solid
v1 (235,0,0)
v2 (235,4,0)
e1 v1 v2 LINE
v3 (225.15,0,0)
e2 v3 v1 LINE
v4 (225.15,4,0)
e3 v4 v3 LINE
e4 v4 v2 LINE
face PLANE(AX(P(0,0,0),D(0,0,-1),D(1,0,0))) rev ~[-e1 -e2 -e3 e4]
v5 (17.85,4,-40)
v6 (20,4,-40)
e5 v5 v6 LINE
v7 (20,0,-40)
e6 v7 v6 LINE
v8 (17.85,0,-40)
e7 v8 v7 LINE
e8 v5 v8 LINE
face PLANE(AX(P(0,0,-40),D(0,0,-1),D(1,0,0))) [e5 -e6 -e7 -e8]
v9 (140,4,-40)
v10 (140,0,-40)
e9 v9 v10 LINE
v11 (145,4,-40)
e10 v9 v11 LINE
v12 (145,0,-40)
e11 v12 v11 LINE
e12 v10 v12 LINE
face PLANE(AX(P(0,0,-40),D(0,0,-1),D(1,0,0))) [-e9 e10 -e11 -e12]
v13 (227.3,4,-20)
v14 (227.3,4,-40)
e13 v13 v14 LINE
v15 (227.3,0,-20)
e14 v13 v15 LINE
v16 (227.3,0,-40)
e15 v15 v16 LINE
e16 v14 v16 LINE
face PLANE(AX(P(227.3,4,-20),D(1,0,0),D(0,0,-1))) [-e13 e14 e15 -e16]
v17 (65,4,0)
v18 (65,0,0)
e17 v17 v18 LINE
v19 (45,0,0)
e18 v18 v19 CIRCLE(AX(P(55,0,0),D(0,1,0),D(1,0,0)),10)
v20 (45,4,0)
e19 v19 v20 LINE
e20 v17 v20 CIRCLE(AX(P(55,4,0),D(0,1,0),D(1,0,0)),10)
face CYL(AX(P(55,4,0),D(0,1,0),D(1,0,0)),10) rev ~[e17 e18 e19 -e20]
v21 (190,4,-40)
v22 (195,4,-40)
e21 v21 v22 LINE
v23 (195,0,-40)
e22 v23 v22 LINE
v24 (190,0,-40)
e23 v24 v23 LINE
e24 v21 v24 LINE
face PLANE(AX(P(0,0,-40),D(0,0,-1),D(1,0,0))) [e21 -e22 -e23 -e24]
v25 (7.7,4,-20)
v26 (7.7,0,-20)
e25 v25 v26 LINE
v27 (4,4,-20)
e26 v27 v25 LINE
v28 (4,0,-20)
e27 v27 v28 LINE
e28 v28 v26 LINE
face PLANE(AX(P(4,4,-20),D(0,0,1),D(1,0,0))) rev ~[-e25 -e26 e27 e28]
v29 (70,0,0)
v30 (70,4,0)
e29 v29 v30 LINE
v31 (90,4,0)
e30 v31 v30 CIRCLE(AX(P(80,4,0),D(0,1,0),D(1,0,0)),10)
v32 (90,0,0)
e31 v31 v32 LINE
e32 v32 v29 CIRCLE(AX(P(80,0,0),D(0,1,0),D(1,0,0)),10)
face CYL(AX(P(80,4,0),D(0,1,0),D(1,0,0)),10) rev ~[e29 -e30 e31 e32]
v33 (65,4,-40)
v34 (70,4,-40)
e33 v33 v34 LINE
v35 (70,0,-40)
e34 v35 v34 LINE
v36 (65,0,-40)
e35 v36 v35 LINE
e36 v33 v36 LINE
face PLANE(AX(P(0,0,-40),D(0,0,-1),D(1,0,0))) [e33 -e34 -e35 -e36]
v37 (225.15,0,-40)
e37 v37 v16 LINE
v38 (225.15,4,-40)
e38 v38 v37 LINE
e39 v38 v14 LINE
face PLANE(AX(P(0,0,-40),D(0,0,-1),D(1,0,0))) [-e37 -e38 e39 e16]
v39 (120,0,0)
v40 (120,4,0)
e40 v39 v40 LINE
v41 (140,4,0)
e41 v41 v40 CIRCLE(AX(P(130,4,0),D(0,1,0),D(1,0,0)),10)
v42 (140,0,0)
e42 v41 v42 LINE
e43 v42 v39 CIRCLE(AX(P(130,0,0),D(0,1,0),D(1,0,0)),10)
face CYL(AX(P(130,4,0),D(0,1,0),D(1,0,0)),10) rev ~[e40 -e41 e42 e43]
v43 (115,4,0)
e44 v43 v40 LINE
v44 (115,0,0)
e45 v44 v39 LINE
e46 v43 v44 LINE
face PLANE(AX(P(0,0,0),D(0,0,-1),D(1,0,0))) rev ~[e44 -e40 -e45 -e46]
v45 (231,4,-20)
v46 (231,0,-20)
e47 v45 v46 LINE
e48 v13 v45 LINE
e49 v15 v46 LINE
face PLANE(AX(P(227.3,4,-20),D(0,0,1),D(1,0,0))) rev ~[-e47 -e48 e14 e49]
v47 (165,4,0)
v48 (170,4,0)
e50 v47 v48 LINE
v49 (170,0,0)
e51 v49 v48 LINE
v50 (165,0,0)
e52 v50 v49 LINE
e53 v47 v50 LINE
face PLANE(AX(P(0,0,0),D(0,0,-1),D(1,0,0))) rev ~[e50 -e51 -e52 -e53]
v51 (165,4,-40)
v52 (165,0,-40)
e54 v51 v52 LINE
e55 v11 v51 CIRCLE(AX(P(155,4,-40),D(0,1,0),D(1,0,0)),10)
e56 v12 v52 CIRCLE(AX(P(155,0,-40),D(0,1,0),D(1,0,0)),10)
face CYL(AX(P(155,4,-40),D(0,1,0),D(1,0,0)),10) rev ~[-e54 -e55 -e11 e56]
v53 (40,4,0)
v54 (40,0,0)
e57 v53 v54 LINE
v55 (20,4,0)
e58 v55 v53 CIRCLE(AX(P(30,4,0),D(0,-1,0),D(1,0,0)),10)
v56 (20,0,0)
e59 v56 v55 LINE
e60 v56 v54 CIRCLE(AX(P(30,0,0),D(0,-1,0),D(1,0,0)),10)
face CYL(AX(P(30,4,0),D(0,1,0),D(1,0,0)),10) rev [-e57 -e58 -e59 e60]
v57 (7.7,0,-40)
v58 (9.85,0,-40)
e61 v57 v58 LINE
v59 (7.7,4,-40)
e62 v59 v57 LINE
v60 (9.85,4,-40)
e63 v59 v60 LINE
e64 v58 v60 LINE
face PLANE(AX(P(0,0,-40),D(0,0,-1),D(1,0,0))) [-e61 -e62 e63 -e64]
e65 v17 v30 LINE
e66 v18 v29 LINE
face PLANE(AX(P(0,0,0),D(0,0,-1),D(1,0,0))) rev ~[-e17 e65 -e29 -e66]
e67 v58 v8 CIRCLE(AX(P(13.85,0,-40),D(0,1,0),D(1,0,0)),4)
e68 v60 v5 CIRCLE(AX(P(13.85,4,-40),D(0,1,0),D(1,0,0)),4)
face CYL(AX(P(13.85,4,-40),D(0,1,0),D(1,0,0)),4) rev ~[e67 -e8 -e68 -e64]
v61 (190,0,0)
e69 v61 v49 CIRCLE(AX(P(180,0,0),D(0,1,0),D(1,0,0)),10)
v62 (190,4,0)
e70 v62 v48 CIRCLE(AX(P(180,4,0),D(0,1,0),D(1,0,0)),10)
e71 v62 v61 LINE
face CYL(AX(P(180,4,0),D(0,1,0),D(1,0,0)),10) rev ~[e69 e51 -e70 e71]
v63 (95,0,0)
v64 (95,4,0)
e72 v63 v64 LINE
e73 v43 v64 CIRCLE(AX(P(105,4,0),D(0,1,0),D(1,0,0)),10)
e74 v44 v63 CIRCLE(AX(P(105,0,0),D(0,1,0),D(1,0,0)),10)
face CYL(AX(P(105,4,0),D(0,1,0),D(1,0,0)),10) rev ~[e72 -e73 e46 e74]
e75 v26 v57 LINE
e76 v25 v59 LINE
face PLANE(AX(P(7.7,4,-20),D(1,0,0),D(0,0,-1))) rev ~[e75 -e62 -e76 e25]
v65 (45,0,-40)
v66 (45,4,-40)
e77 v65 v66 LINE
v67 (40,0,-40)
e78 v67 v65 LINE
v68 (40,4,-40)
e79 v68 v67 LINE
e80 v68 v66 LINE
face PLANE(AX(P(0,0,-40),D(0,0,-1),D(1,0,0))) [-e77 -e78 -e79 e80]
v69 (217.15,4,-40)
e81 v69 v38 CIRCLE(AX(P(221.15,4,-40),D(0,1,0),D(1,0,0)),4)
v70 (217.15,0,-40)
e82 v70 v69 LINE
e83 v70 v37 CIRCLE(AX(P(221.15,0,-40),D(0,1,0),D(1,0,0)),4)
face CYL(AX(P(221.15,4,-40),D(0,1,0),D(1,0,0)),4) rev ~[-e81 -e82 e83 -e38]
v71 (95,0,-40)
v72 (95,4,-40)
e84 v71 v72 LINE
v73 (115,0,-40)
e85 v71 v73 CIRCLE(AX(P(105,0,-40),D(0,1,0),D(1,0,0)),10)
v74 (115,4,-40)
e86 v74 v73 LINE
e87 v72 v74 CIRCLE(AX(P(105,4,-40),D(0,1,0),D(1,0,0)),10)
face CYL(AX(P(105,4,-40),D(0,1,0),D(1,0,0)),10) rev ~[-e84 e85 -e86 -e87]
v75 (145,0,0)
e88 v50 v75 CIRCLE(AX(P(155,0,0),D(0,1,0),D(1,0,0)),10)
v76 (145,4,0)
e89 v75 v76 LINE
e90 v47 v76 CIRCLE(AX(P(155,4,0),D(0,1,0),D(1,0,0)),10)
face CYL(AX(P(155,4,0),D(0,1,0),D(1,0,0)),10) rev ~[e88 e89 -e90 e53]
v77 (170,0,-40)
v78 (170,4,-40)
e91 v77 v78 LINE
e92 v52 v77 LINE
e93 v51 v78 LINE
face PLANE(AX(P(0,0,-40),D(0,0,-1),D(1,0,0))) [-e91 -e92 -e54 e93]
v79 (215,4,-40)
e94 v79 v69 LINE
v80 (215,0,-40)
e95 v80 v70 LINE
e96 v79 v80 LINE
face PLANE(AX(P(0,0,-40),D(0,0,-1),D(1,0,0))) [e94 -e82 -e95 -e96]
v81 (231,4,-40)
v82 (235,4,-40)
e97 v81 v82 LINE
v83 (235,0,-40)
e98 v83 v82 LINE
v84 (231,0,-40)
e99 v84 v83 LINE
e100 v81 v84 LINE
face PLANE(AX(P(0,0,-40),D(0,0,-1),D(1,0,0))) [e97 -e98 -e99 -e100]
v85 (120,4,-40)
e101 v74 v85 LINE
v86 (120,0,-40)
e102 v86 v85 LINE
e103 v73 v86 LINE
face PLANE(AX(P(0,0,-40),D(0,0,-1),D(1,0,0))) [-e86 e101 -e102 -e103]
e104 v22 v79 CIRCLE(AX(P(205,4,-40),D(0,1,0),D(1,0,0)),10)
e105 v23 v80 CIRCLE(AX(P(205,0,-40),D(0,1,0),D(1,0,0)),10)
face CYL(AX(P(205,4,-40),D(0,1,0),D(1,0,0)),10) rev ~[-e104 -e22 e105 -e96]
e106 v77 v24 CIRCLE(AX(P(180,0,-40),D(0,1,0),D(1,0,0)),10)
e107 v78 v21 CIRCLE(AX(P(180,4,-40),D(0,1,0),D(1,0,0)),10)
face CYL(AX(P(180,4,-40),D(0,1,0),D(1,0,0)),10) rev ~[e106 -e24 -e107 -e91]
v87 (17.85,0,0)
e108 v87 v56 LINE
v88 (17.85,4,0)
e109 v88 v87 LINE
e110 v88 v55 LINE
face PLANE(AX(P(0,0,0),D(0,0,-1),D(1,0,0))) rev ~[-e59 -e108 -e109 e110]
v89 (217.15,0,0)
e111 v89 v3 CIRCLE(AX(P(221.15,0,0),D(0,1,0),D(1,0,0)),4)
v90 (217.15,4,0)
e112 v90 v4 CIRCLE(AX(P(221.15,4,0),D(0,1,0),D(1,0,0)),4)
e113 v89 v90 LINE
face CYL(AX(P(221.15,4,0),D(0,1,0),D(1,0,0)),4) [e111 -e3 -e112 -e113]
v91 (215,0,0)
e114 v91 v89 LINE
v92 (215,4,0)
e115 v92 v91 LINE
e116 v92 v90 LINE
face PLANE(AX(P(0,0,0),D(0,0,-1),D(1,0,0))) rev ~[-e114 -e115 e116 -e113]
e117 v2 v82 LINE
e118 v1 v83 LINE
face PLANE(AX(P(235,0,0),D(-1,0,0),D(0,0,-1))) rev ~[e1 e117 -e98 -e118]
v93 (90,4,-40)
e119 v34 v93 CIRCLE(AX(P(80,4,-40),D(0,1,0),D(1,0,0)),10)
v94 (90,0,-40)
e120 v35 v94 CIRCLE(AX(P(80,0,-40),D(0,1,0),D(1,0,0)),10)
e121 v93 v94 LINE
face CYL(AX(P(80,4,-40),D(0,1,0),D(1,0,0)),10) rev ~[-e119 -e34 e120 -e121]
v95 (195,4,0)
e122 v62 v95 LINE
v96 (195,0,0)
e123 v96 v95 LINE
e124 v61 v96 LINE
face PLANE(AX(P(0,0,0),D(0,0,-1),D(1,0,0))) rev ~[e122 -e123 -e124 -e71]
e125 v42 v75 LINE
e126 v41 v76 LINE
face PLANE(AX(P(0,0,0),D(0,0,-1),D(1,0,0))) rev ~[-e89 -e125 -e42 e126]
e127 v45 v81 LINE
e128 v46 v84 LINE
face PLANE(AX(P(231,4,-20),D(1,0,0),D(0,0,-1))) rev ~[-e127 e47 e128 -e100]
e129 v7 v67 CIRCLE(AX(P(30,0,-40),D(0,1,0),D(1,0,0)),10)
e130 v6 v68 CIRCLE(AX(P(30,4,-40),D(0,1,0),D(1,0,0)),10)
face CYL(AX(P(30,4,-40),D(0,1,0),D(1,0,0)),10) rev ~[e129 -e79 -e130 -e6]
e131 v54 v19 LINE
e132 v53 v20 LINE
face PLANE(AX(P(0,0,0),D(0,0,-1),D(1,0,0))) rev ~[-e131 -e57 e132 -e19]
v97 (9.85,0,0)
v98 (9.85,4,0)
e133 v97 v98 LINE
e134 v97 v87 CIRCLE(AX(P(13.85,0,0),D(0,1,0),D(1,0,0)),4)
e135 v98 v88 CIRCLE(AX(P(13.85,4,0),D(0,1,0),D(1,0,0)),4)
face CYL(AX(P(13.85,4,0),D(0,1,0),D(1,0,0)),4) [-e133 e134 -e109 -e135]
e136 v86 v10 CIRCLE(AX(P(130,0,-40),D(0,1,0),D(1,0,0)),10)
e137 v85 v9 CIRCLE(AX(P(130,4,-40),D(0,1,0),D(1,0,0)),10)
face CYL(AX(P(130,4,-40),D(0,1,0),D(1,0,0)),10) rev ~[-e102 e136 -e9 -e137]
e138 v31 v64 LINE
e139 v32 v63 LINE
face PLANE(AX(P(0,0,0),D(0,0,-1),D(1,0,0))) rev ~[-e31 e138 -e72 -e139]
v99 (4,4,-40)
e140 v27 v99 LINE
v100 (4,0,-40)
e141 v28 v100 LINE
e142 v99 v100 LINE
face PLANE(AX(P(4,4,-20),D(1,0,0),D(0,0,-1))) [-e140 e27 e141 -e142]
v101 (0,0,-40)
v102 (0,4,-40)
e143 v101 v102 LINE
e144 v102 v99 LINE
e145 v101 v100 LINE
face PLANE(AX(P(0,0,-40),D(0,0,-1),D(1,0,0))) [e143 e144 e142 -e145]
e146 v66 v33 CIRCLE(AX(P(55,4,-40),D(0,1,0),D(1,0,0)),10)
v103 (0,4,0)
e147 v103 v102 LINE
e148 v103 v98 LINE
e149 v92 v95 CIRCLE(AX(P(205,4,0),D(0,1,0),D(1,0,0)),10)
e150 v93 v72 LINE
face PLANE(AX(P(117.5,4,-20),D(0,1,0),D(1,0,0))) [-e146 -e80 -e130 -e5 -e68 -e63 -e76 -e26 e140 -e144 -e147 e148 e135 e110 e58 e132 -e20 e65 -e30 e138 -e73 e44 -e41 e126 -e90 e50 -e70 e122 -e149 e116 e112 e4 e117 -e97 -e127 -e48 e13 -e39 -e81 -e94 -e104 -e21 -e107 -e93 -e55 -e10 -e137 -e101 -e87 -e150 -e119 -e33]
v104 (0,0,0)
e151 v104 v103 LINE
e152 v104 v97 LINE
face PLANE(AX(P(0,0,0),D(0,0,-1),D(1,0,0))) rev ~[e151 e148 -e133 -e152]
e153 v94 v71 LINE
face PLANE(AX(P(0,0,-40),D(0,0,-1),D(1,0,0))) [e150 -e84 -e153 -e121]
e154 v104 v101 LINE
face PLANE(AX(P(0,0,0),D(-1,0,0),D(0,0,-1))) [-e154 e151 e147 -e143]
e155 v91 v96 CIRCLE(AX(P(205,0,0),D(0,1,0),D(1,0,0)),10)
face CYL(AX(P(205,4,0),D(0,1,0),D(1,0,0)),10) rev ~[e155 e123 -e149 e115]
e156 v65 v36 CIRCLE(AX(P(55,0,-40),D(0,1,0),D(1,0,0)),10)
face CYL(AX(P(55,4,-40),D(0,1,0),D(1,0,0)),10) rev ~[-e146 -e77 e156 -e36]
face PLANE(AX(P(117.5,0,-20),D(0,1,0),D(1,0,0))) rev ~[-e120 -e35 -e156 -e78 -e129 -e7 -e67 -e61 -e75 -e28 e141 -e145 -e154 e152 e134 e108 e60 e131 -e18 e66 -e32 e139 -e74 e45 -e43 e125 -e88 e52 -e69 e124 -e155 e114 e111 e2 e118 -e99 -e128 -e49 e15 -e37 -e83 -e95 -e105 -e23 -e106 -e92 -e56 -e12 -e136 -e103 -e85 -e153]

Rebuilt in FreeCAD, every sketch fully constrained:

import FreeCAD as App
import Part
import Sketcher
from FreeCAD import Vector


def add_polygon(sketch, points):
    """Adds a closed chain of lines whose ends are joined by coincident constraints."""
    first, n = sketch.GeometryCount, len(points)
    for a, b in zip(points, points[1:] + points[:1]):
        sketch.addGeometry(Part.LineSegment(App.Vector(*a, 0), App.Vector(*b, 0)), False)
    for i in range(n):
        sketch.addConstraint(Sketcher.Constraint("Coincident", first + i, 2, first + (i + 1) % n, 1))

doc = App.newDocument("Part")
body = doc.addObject("PartDesign::Body", "Body")

# Sketch on XZ plane
sketch1 = body.newObject("Sketcher::SketchObject", "Sketch")
sketch1.AttachmentSupport = (doc.getObject("XZ_Plane"), [""])
sketch1.MapMode = "FlatFace"
add_polygon(sketch1, [(0, -40), (0, 0), (235, 0), (235, -40)])  # lines 0-3
sketch1.addConstraint(Sketcher.Constraint("Vertical", 0))
sketch1.addConstraint(Sketcher.Constraint("Horizontal", 1))
sketch1.addConstraint(Sketcher.Constraint("Vertical", 2))
sketch1.addConstraint(Sketcher.Constraint("Horizontal", 3))
sketch1.addConstraint(Sketcher.Constraint("Coincident", 0, 2, -1, 1))
sketch1.addConstraint(Sketcher.Constraint("DistanceX", 1, 1, 1, 2, 235.0))
sketch1.addConstraint(Sketcher.Constraint("DistanceY", 0, 1, 0, 2, 40.0))
pad1 = body.newObject("PartDesign::Pad", "Pad")
pad1.Profile = sketch1
pad1.Length = 4
pad1.Reversed = True

# Sketch on XZ plane
sketch2 = body.newObject("Sketcher::SketchObject", "Sketch001")
sketch2.AttachmentSupport = (doc.getObject("XZ_Plane"), [""])
sketch2.MapMode = "FlatFace"
sketch2.AttachmentOffset = App.Placement(Vector(0, 0, -4), App.Rotation())
add_polygon(sketch2, [(4, -40), (4, -20), (7.7, -20), (7.7, -40)])  # lines 0-3
add_polygon(sketch2, [(227.3, -40), (227.3, -20), (231, -20), (231, -40)])  # lines 4-7
sketch2.addConstraint(Sketcher.Constraint("Vertical", 0))
sketch2.addConstraint(Sketcher.Constraint("Horizontal", 1))
sketch2.addConstraint(Sketcher.Constraint("Vertical", 2))
sketch2.addConstraint(Sketcher.Constraint("Horizontal", 3))
sketch2.addConstraint(Sketcher.Constraint("Vertical", 4))
sketch2.addConstraint(Sketcher.Constraint("Horizontal", 5))
sketch2.addConstraint(Sketcher.Constraint("Vertical", 6))
sketch2.addConstraint(Sketcher.Constraint("Horizontal", 7))
sketch2.addConstraint(Sketcher.Constraint("Horizontal", 1, 2, 4, 2))
sketch2.addConstraint(Sketcher.Constraint("Horizontal", 3, 2, 6, 2))
sketch2.addConstraint(Sketcher.Constraint("Equal", 3, 5))
sketch2.addConstraint(Sketcher.Constraint("DistanceY", 0, 1, 0, 2, 20.0))
sketch2.addConstraint(Sketcher.Constraint("DistanceX", 1, 1, 1, 2, 3.7))
sketch2.addConstraint(Sketcher.Constraint("DistanceX", -1, 1, 0, 2, 4.0))
sketch2.addConstraint(Sketcher.Constraint("DistanceY", 0, 2, -1, 1, 20.0))
sketch2.addConstraint(Sketcher.Constraint("DistanceX", -1, 1, 5, 2, 231.0))
pocket1 = body.newObject("PartDesign::Pocket", "Pocket")
pocket1.Profile = sketch2
pocket1.Length = 4
pocket1.Reversed = True

# Sketch on XZ plane
sketch3 = body.newObject("Sketcher::SketchObject", "Sketch002")
sketch3.AttachmentSupport = (doc.getObject("XZ_Plane"), [""])
sketch3.MapMode = "FlatFace"
sketch3.AttachmentOffset = App.Placement(Vector(0, 0, -4), App.Rotation())
sketch3.addGeometry(Part.Circle(Vector(30, -40, 0), Vector(0, 0, 1), 10), False)
sketch3.addConstraint(Sketcher.Constraint("Diameter", 0, 20.0))
sketch3.addConstraint(Sketcher.Constraint("DistanceX", -1, 1, 0, 3, 30.0))
sketch3.addConstraint(Sketcher.Constraint("DistanceY", 0, 3, -1, 1, 40.0))
pocket2 = body.newObject("PartDesign::Pocket", "Pocket001")
pocket2.Profile = sketch3
pocket2.Length = 4
pocket2.Reversed = True
doc.recompute()

linearpattern = body.newObject("PartDesign::LinearPattern", "LinearPattern")
linearpattern.Originals = [pocket2]
linearpattern.Direction = (doc.getObject("X_Axis"), [""])
linearpattern.Mode = "offset"
linearpattern.Offset = 25
linearpattern.Occurrences = 8
body.Tip = linearpattern

# Sketch on XZ plane
sketch4 = body.newObject("Sketcher::SketchObject", "Sketch003")
sketch4.AttachmentSupport = (doc.getObject("XZ_Plane"), [""])
sketch4.MapMode = "FlatFace"
sketch4.AttachmentOffset = App.Placement(Vector(0, 0, -4), App.Rotation())
sketch4.addGeometry(Part.Circle(Vector(221.15, -40, 0), Vector(0, 0, 1), 4), False)
sketch4.addGeometry(Part.Circle(Vector(13.85, -40, 0), Vector(0, 0, 1), 4), False)
sketch4.addConstraint(Sketcher.Constraint("Equal", 0, 1))
sketch4.addConstraint(Sketcher.Constraint("Horizontal", 0, 3, 1, 3))
sketch4.addConstraint(Sketcher.Constraint("Diameter", 0, 8.0))
sketch4.addConstraint(Sketcher.Constraint("DistanceY", 0, 3, -1, 1, 40.0))
sketch4.addConstraint(Sketcher.Constraint("DistanceX", 1, 3, 0, 3, 207.3))
sketch4.addConstraint(Sketcher.Constraint("DistanceX", -1, 1, 0, 3, 221.15))
pocket3 = body.newObject("PartDesign::Pocket", "Pocket002")
pocket3.Profile = sketch4
pocket3.Length = 4
pocket3.Reversed = True

# Sketch on XZ plane
sketch5 = body.newObject("Sketcher::SketchObject", "Sketch004")
sketch5.AttachmentSupport = (doc.getObject("XZ_Plane"), [""])
sketch5.MapMode = "FlatFace"
sketch5.AttachmentOffset = App.Placement(Vector(0, 0, -4), App.Rotation())
sketch5.addGeometry(Part.Circle(Vector(221.15, 0, 0), Vector(0, 0, 1), 4), False)
sketch5.addGeometry(Part.Circle(Vector(13.85, 0, 0), Vector(0, 0, 1), 4), False)
sketch5.addConstraint(Sketcher.Constraint("Equal", 0, 1))
sketch5.addConstraint(Sketcher.Constraint("PointOnObject", 0, 3, -1))
sketch5.addConstraint(Sketcher.Constraint("PointOnObject", 1, 3, -1))
sketch5.addConstraint(Sketcher.Constraint("Diameter", 0, 8.0))
sketch5.addConstraint(Sketcher.Constraint("DistanceX", 1, 3, 0, 3, 207.3))
sketch5.addConstraint(Sketcher.Constraint("DistanceX", -1, 1, 0, 3, 221.15))
pad2 = body.newObject("PartDesign::Pad", "Pad001")
pad2.Profile = sketch5
pad2.Length = 4
doc.recompute()

datumplane = body.newObject("PartDesign::Plane", "DatumPlane")
datumplane.AttachmentSupport = (doc.getObject("XY_Plane"), [""])
datumplane.MapMode = "FlatFace"
datumplane.AttachmentOffset = App.Placement(Vector(0, 0, -20), App.Rotation())
mirrored = body.newObject("PartDesign::Mirrored", "Mirrored")
mirrored.Originals = [pocket2]
mirrored.MirrorPlane = (datumplane, [""])
body.Tip = mirrored

# Sketch on XZ plane
sketch6 = body.newObject("Sketcher::SketchObject", "Sketch005")
sketch6.AttachmentSupport = (doc.getObject("XZ_Plane"), [""])
sketch6.MapMode = "FlatFace"
sketch6.AttachmentOffset = App.Placement(Vector(0, 0, -4), App.Rotation())
sketch6.addGeometry(Part.Circle(Vector(55, 0, 0), Vector(0, 0, 1), 10), False)
sketch6.addConstraint(Sketcher.Constraint("PointOnObject", 0, 3, -1))
sketch6.addConstraint(Sketcher.Constraint("Diameter", 0, 20.0))
sketch6.addConstraint(Sketcher.Constraint("DistanceX", -1, 1, 0, 3, 55.0))
pocket4 = body.newObject("PartDesign::Pocket", "Pocket003")
pocket4.Profile = sketch6
pocket4.Length = 4
pocket4.Reversed = True

# Sketch on XZ plane
sketch7 = body.newObject("Sketcher::SketchObject", "Sketch006")
sketch7.AttachmentSupport = (doc.getObject("XZ_Plane"), [""])
sketch7.MapMode = "FlatFace"
sketch7.AttachmentOffset = App.Placement(Vector(0, 0, -4), App.Rotation())
sketch7.addGeometry(Part.Circle(Vector(80, 0, 0), Vector(0, 0, 1), 10), False)
sketch7.addConstraint(Sketcher.Constraint("PointOnObject", 0, 3, -1))
sketch7.addConstraint(Sketcher.Constraint("Diameter", 0, 20.0))
sketch7.addConstraint(Sketcher.Constraint("DistanceX", -1, 1, 0, 3, 80.0))
pocket5 = body.newObject("PartDesign::Pocket", "Pocket004")
pocket5.Profile = sketch7
pocket5.Length = 4
pocket5.Reversed = True

# Sketch on XZ plane
sketch8 = body.newObject("Sketcher::SketchObject", "Sketch007")
sketch8.AttachmentSupport = (doc.getObject("XZ_Plane"), [""])
sketch8.MapMode = "FlatFace"
sketch8.AttachmentOffset = App.Placement(Vector(0, 0, -4), App.Rotation())
sketch8.addGeometry(Part.Circle(Vector(105, 0, 0), Vector(0, 0, 1), 10), False)
sketch8.addConstraint(Sketcher.Constraint("PointOnObject", 0, 3, -1))
sketch8.addConstraint(Sketcher.Constraint("Diameter", 0, 20.0))
sketch8.addConstraint(Sketcher.Constraint("DistanceX", -1, 1, 0, 3, 105.0))
pocket6 = body.newObject("PartDesign::Pocket", "Pocket005")
pocket6.Profile = sketch8
pocket6.Length = 4
pocket6.Reversed = True

# Sketch on XZ plane
sketch9 = body.newObject("Sketcher::SketchObject", "Sketch008")
sketch9.AttachmentSupport = (doc.getObject("XZ_Plane"), [""])
sketch9.MapMode = "FlatFace"
sketch9.AttachmentOffset = App.Placement(Vector(0, 0, -4), App.Rotation())
sketch9.addGeometry(Part.Circle(Vector(130, 0, 0), Vector(0, 0, 1), 10), False)
sketch9.addConstraint(Sketcher.Constraint("PointOnObject", 0, 3, -1))
sketch9.addConstraint(Sketcher.Constraint("Diameter", 0, 20.0))
sketch9.addConstraint(Sketcher.Constraint("DistanceX", -1, 1, 0, 3, 130.0))
pocket7 = body.newObject("PartDesign::Pocket", "Pocket006")
pocket7.Profile = sketch9
pocket7.Length = 4
pocket7.Reversed = True

# Sketch on XZ plane
sketch10 = body.newObject("Sketcher::SketchObject", "Sketch009")
sketch10.AttachmentSupport = (doc.getObject("XZ_Plane"), [""])
sketch10.MapMode = "FlatFace"
sketch10.AttachmentOffset = App.Placement(Vector(0, 0, -4), App.Rotation())
sketch10.addGeometry(Part.Circle(Vector(155, 0, 0), Vector(0, 0, 1), 10), False)
sketch10.addConstraint(Sketcher.Constraint("PointOnObject", 0, 3, -1))
sketch10.addConstraint(Sketcher.Constraint("Diameter", 0, 20.0))
sketch10.addConstraint(Sketcher.Constraint("DistanceX", -1, 1, 0, 3, 155.0))
pocket8 = body.newObject("PartDesign::Pocket", "Pocket007")
pocket8.Profile = sketch10
pocket8.Length = 4
pocket8.Reversed = True

# Sketch on XZ plane
sketch11 = body.newObject("Sketcher::SketchObject", "Sketch010")
sketch11.AttachmentSupport = (doc.getObject("XZ_Plane"), [""])
sketch11.MapMode = "FlatFace"
sketch11.AttachmentOffset = App.Placement(Vector(0, 0, -4), App.Rotation())
sketch11.addGeometry(Part.Circle(Vector(180, 0, 0), Vector(0, 0, 1), 10), False)
sketch11.addConstraint(Sketcher.Constraint("PointOnObject", 0, 3, -1))
sketch11.addConstraint(Sketcher.Constraint("Diameter", 0, 20.0))
sketch11.addConstraint(Sketcher.Constraint("DistanceX", -1, 1, 0, 3, 180.0))
pocket9 = body.newObject("PartDesign::Pocket", "Pocket008")
pocket9.Profile = sketch11
pocket9.Length = 4
pocket9.Reversed = True

# Sketch on XZ plane
sketch12 = body.newObject("Sketcher::SketchObject", "Sketch011")
sketch12.AttachmentSupport = (doc.getObject("XZ_Plane"), [""])
sketch12.MapMode = "FlatFace"
sketch12.AttachmentOffset = App.Placement(Vector(0, 0, -4), App.Rotation())
sketch12.addGeometry(Part.Circle(Vector(205, 0, 0), Vector(0, 0, 1), 10), False)
sketch12.addConstraint(Sketcher.Constraint("PointOnObject", 0, 3, -1))
sketch12.addConstraint(Sketcher.Constraint("Diameter", 0, 20.0))
sketch12.addConstraint(Sketcher.Constraint("DistanceX", -1, 1, 0, 3, 205.0))
pocket10 = body.newObject("PartDesign::Pocket", "Pocket009")
pocket10.Profile = sketch12
pocket10.Length = 4
pocket10.Reversed = True

doc.recompute()
